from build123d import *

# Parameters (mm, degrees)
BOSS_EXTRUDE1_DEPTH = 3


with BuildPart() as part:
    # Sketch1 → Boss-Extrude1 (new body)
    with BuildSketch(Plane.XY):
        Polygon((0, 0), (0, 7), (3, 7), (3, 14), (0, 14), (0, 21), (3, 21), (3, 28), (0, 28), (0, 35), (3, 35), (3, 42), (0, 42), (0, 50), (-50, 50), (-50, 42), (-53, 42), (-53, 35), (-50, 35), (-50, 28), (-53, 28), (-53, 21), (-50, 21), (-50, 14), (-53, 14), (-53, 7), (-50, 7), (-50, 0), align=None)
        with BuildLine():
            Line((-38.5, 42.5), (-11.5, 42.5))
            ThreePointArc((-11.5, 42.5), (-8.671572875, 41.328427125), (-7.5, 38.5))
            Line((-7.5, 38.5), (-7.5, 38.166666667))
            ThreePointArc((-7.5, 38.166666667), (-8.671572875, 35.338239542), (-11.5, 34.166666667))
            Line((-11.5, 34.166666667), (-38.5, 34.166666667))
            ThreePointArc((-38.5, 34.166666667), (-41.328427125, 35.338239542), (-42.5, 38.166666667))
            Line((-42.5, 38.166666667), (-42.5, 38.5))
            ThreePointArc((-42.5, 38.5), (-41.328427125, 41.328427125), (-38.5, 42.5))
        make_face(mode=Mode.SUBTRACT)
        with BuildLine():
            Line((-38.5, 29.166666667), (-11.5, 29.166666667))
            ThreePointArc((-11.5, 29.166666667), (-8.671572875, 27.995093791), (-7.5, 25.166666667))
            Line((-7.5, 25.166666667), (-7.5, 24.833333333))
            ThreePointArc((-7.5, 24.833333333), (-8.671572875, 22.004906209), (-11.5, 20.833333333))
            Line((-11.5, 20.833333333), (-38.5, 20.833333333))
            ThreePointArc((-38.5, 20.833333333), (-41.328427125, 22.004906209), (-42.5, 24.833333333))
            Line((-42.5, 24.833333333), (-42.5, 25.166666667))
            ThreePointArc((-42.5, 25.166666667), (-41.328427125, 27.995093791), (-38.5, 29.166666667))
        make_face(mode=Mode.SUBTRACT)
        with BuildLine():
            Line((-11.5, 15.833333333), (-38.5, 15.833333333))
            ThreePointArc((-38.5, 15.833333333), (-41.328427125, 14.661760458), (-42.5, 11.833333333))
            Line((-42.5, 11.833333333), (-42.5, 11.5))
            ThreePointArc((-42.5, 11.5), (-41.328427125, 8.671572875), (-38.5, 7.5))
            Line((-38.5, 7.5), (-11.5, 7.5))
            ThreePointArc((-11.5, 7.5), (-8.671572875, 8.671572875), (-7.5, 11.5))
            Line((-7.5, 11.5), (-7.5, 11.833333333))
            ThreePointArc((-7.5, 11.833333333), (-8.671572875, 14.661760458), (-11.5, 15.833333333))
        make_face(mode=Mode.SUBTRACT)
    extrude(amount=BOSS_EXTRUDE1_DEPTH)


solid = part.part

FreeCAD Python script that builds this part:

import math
import FreeCAD as App
import Part
import Sketcher
from FreeCAD import Vector

doc = App.newDocument("Part")
body = doc.addObject("PartDesign::Body", "Body")

# Sketch on XY plane
sketch1 = body.newObject("Sketcher::SketchObject", "Sketch")
sketch1.AttachmentSupport = (doc.getObject("XY_Plane"), [""])
sketch1.MapMode = "FlatFace"
sketch1.addGeometry(Part.LineSegment(Vector(0, 0, 0), Vector(0, 7, 0)), False)
sketch1.addGeometry(Part.LineSegment(Vector(0, 7, 0), Vector(3, 7, 0)), False)
sketch1.addGeometry(Part.LineSegment(Vector(3, 7, 0), Vector(3, 14, 0)), False)
sketch1.addGeometry(Part.LineSegment(Vector(3, 14, 0), Vector(0, 14, 0)), False)
sketch1.addGeometry(Part.LineSegment(Vector(0, 14, 0), Vector(0, 21, 0)), False)
sketch1.addGeometry(Part.LineSegment(Vector(0, 21, 0), Vector(3, 21, 0)), False)
sketch1.addGeometry(Part.LineSegment(Vector(3, 21, 0), Vector(3, 28, 0)), False)
sketch1.addGeometry(Part.LineSegment(Vector(3, 28, 0), Vector(0, 28, 0)), False)
sketch1.addGeometry(Part.LineSegment(Vector(0, 28, 0), Vector(0, 35, 0)), False)
sketch1.addGeometry(Part.LineSegment(Vector(0, 35, 0), Vector(3, 35, 0)), False)
sketch1.addGeometry(Part.LineSegment(Vector(3, 35, 0), Vector(3, 42, 0)), False)
sketch1.addGeometry(Part.LineSegment(Vector(3, 42, 0), Vector(0, 42, 0)), False)
sketch1.addGeometry(Part.LineSegment(Vector(0, 42, 0), Vector(0, 50, 0)), False)
sketch1.addGeometry(Part.LineSegment(Vector(0, 50, 0), Vector(-50, 50, 0)), False)
sketch1.addGeometry(Part.LineSegment(Vector(-50, 50, 0), Vector(-50, 42, 0)), False)
sketch1.addGeometry(Part.LineSegment(Vector(-50, 42, 0), Vector(-53, 42, 0)), False)
sketch1.addGeometry(Part.LineSegment(Vector(-53, 42, 0), Vector(-53, 35, 0)), False)
sketch1.addGeometry(Part.LineSegment(Vector(-53, 35, 0), Vector(-50, 35, 0)), False)
sketch1.addGeometry(Part.LineSegment(Vector(-50, 35, 0), Vector(-50, 28, 0)), False)
sketch1.addGeometry(Part.LineSegment(Vector(-50, 28, 0), Vector(-53, 28, 0)), False)
sketch1.addGeometry(Part.LineSegment(Vector(-53, 28, 0), Vector(-53, 21, 0)), False)
sketch1.addGeometry(Part.LineSegment(Vector(-53, 21, 0), Vector(-50, 21, 0)), False)
sketch1.addGeometry(Part.LineSegment(Vector(-50, 21, 0), Vector(-50, 14, 0)), False)
sketch1.addGeometry(Part.LineSegment(Vector(-50, 14, 0), Vector(-53, 14, 0)), False)
sketch1.addGeometry(Part.LineSegment(Vector(-53, 14, 0), Vector(-53, 7, 0)), False)
sketch1.addGeometry(Part.LineSegment(Vector(-53, 7, 0), Vector(-50, 7, 0)), False)
sketch1.addGeometry(Part.LineSegment(Vector(-50, 7, 0), Vector(-50, 0, 0)), False)
sketch1.addGeometry(Part.LineSegment(Vector(-50, 0, 0), Vector(0, 0, 0)), False)
sketch1.addGeometry(Part.LineSegment(Vector(-38.5, 15.83, 0), Vector(-11.5, 15.83, 0)), False)
sketch1.addGeometry(Part.ArcOfCircle(Part.Circle(Vector(-11.5, 11.83, 0), Vector(0, 0, 1), 4), math.radians(0), math.radians(90)), False)
sketch1.addGeometry(Part.LineSegment(Vector(-7.5, 11.83, 0), Vector(-7.5, 11.5, 0)), False)
sketch1.addGeometry(Part.ArcOfCircle(Part.Circle(Vector(-11.5, 11.5, 0), Vector(0, 0, 1), 4), math.radians(-90), math.radians(0)), False)
sketch1.addGeometry(Part.LineSegment(Vector(-11.5, 7.5, 0), Vector(-38.5, 7.5, 0)), False)
sketch1.addGeometry(Part.ArcOfCircle(Part.Circle(Vector(-38.5, 11.5, 0), Vector(0, 0, 1), 4), math.radians(180), math.radians(270)), False)
sketch1.addGeometry(Part.LineSegment(Vector(-42.5, 11.5, 0), Vector(-42.5, 11.83, 0)), False)
sketch1.addGeometry(Part.ArcOfCircle(Part.Circle(Vector(-38.5, 11.83, 0), Vector(0, 0, 1), 4), math.radians(90), math.radians(180)), False)
sketch1.addGeometry(Part.ArcOfCircle(Part.Circle(Vector(-38.5, 25.17, 0), Vector(0, 0, 1), 4), math.radians(90), math.radians(180)), False)
sketch1.addGeometry(Part.LineSegment(Vector(-38.5, 29.17, 0), Vector(-11.5, 29.17, 0)), False)
sketch1.addGeometry(Part.ArcOfCircle(Part.Circle(Vector(-11.5, 25.17, 0), Vector(0, 0, 1), 4), math.radians(0), math.radians(90)), False)
sketch1.addGeometry(Part.LineSegment(Vector(-7.5, 25.17, 0), Vector(-7.5, 24.83, 0)), False)
sketch1.addGeometry(Part.ArcOfCircle(Part.Circle(Vector(-11.5, 24.83, 0), Vector(0, 0, 1), 4), math.radians(-90), math.radians(0)), False)
sketch1.addGeometry(Part.LineSegment(Vector(-11.5, 20.83, 0), Vector(-38.5, 20.83, 0)), False)
sketch1.addGeometry(Part.ArcOfCircle(Part.Circle(Vector(-38.5, 24.83, 0), Vector(0, 0, 1), 4), math.radians(-180), math.radians(-90)), False)
sketch1.addGeometry(Part.LineSegment(Vector(-42.5, 24.83, 0), Vector(-42.5, 25.17, 0)), False)
sketch1.addGeometry(Part.ArcOfCircle(Part.Circle(Vector(-38.5, 38.5, 0), Vector(0, 0, 1), 4), math.radians(90), math.radians(180)), False)
sketch1.addGeometry(Part.LineSegment(Vector(-38.5, 42.5, 0), Vector(-11.5, 42.5, 0)), False)
sketch1.addGeometry(Part.ArcOfCircle(Part.Circle(Vector(-11.5, 38.5, 0), Vector(0, 0, 1), 4), math.radians(0), math.radians(90)), False)
sketch1.addGeometry(Part.LineSegment(Vector(-7.5, 38.5, 0), Vector(-7.5, 38.17, 0)), False)
sketch1.addGeometry(Part.ArcOfCircle(Part.Circle(Vector(-11.5, 38.17, 0), Vector(0, 0, 1), 4), math.radians(-90), math.radians(0)), False)
sketch1.addGeometry(Part.LineSegment(Vector(-11.5, 34.17, 0), Vector(-38.5, 34.17, 0)), False)
sketch1.addGeometry(Part.ArcOfCircle(Part.Circle(Vector(-38.5, 38.17, 0), Vector(0, 0, 1), 4), math.radians(180), math.radians(270)), False)
sketch1.addGeometry(Part.LineSegment(Vector(-42.5, 38.17, 0), Vector(-42.5, 38.5, 0)), False)
sketch1.addConstraint(Sketcher.Constraint("Coincident", 0, 2, 1, 1))
sketch1.addConstraint(Sketcher.Constraint("Coincident", 1, 2, 2, 1))
sketch1.addConstraint(Sketcher.Constraint("Coincident", 2, 2, 3, 1))
sketch1.addConstraint(Sketcher.Constraint("Coincident", 3, 2, 4, 1))
sketch1.addConstraint(Sketcher.Constraint("Coincident", 4, 2, 5, 1))
sketch1.addConstraint(Sketcher.Constraint("Coincident", 5, 2, 6, 1))
sketch1.addConstraint(Sketcher.Constraint("Coincident", 6, 2, 7, 1))
sketch1.addConstraint(Sketcher.Constraint("Coincident", 7, 2, 8, 1))
sketch1.addConstraint(Sketcher.Constraint("Coincident", 8, 2, 9, 1))
sketch1.addConstraint(Sketcher.Constraint("Coincident", 9, 2, 10, 1))
sketch1.addConstraint(Sketcher.Constraint("Coincident", 10, 2, 11, 1))
sketch1.addConstraint(Sketcher.Constraint("Coincident", 11, 2, 12, 1))
sketch1.addConstraint(Sketcher.Constraint("Coincident", 12, 2, 13, 1))
sketch1.addConstraint(Sketcher.Constraint("Coincident", 13, 2, 14, 1))
sketch1.addConstraint(Sketcher.Constraint("Coincident", 14, 2, 15, 1))
sketch1.addConstraint(Sketcher.Constraint("Coincident", 15, 2, 16, 1))
sketch1.addConstraint(Sketcher.Constraint("Coincident", 16, 2, 17, 1))
sketch1.addConstraint(Sketcher.Constraint("Coincident", 17, 2, 18, 1))
sketch1.addConstraint(Sketcher.Constraint("Coincident", 18, 2, 19, 1))
sketch1.addConstraint(Sketcher.Constraint("Coincident", 19, 2, 20, 1))
sketch1.addConstraint(Sketcher.Constraint("Coincident", 20, 2, 21, 1))
sketch1.addConstraint(Sketcher.Constraint("Coincident", 21, 2, 22, 1))
sketch1.addConstraint(Sketcher.Constraint("Coincident", 22, 2, 23, 1))
sketch1.addConstraint(Sketcher.Constraint("Coincident", 23, 2, 24, 1))
sketch1.addConstraint(Sketcher.Constraint("Coincident", 24, 2, 25, 1))
sketch1.addConstraint(Sketcher.Constraint("Coincident", 25, 2, 26, 1))
sketch1.addConstraint(Sketcher.Constraint("Coincident", 26, 2, 27, 1))
sketch1.addConstraint(Sketcher.Constraint("Coincident", 27, 2, 0, 1))
sketch1.addConstraint(Sketcher.Constraint("Tangent", 28, 2, 29, 2))
sketch1.addConstraint(Sketcher.Constraint("Tangent", 29, 1, 30, 1))
sketch1.addConstraint(Sketcher.Constraint("Tangent", 30, 2, 31, 2))
sketch1.addConstraint(Sketcher.Constraint("Tangent", 31, 1, 32, 1))
sketch1.addConstraint(Sketcher.Constraint("Tangent", 32, 2, 33, 2))
sketch1.addConstraint(Sketcher.Constraint("Tangent", 33, 1, 34, 1))
sketch1.addConstraint(Sketcher.Constraint("Tangent", 34, 2, 35, 2))
sketch1.addConstraint(Sketcher.Constraint("Tangent", 35, 1, 28, 1))
sketch1.addConstraint(Sketcher.Constraint("Tangent", 36, 1, 37, 1))
sketch1.addConstraint(Sketcher.Constraint("Tangent", 37, 2, 38, 2))
sketch1.addConstraint(Sketcher.Constraint("Tangent", 38, 1, 39, 1))
sketch1.addConstraint(Sketcher.Constraint("Tangent", 39, 2, 40, 2))
sketch1.addConstraint(Sketcher.Constraint("Tangent", 40, 1, 41, 1))
sketch1.addConstraint(Sketcher.Constraint("Tangent", 41, 2, 42, 2))
sketch1.addConstraint(Sketcher.Constraint("Tangent", 42, 1, 43, 1))
sketch1.addConstraint(Sketcher.Constraint("Tangent", 43, 2, 36, 2))
sketch1.addConstraint(Sketcher.Constraint("Tangent", 44, 1, 45, 1))
sketch1.addConstraint(Sketcher.Constraint("Tangent", 45, 2, 46, 2))
sketch1.addConstraint(Sketcher.Constraint("Tangent", 46, 1, 47, 1))
sketch1.addConstraint(Sketcher.Constraint("Tangent", 47, 2, 48, 2))
sketch1.addConstraint(Sketcher.Constraint("Tangent", 48, 1, 49, 1))
sketch1.addConstraint(Sketcher.Constraint("Tangent", 49, 2, 50, 2))
sketch1.addConstraint(Sketcher.Constraint("Tangent", 50, 1, 51, 1))
sketch1.addConstraint(Sketcher.Constraint("Tangent", 51, 2, 44, 2))
sketch1.addConstraint(Sketcher.Constraint("Vertical", 0))
sketch1.addConstraint(Sketcher.Constraint("Horizontal", 1))
sketch1.addConstraint(Sketcher.Constraint("Vertical", 2))
sketch1.addConstraint(Sketcher.Constraint("Horizontal", 3))
sketch1.addConstraint(Sketcher.Constraint("Vertical", 4))
sketch1.addConstraint(Sketcher.Constraint("Horizontal", 5))
sketch1.addConstraint(Sketcher.Constraint("Vertical", 6))
sketch1.addConstraint(Sketcher.Constraint("Horizontal", 7))
sketch1.addConstraint(Sketcher.Constraint("Vertical", 8))
sketch1.addConstraint(Sketcher.Constraint("Horizontal", 9))
sketch1.addConstraint(Sketcher.Constraint("Vertical", 10))
sketch1.addConstraint(Sketcher.Constraint("Horizontal", 11))
sketch1.addConstraint(Sketcher.Constraint("Vertical", 12))
sketch1.addConstraint(Sketcher.Constraint("Horizontal", 13))
sketch1.addConstraint(Sketcher.Constraint("Vertical", 14))
sketch1.addConstraint(Sketcher.Constraint("Horizontal", 15))
sketch1.addConstraint(Sketcher.Constraint("Vertical", 16))
sketch1.addConstraint(Sketcher.Constraint("Horizontal", 17))
sketch1.addConstraint(Sketcher.Constraint("Vertical", 18))
sketch1.addConstraint(Sketcher.Constraint("Horizontal", 19))
sketch1.addConstraint(Sketcher.Constraint("Vertical", 20))
sketch1.addConstraint(Sketcher.Constraint("Horizontal", 21))
sketch1.addConstraint(Sketcher.Constraint("Vertical", 22))
sketch1.addConstraint(Sketcher.Constraint("Horizontal", 23))
sketch1.addConstraint(Sketcher.Constraint("Vertical", 24))
sketch1.addConstraint(Sketcher.Constraint("Horizontal", 25))
sketch1.addConstraint(Sketcher.Constraint("Vertical", 26))
sketch1.addConstraint(Sketcher.Constraint("Horizontal", 27))
sketch1.addConstraint(Sketcher.Constraint("Horizontal", 28))
sketch1.addConstraint(Sketcher.Constraint("Vertical", 30))
sketch1.addConstraint(Sketcher.Constraint("Horizontal", 32))
sketch1.addConstraint(Sketcher.Constraint("Vertical", 34))
sketch1.addConstraint(Sketcher.Constraint("Horizontal", 37))
sketch1.addConstraint(Sketcher.Constraint("Vertical", 39))
sketch1.addConstraint(Sketcher.Constraint("Horizontal", 41))
sketch1.addConstraint(Sketcher.Constraint("Vertical", 43))
sketch1.addConstraint(Sketcher.Constraint("Horizontal", 45))
sketch1.addConstraint(Sketcher.Constraint("Vertical", 47))
sketch1.addConstraint(Sketcher.Constraint("Horizontal", 49))
sketch1.addConstraint(Sketcher.Constraint("Vertical", 51))
sketch1.addConstraint(Sketcher.Constraint("Coincident", 27, 2, -1, 1))
sketch1.addConstraint(Sketcher.Constraint("Equal", 29, 31))
sketch1.addConstraint(Sketcher.Constraint("Equal", 31, 33))
sketch1.addConstraint(Sketcher.Constraint("Equal", 33, 35))
sketch1.addConstraint(Sketcher.Constraint("Equal", 35, 36))
sketch1.addConstraint(Sketcher.Constraint("Equal", 36, 38))
sketch1.addConstraint(Sketcher.Constraint("Equal", 38, 40))
sketch1.addConstraint(Sketcher.Constraint("Equal", 40, 42))
sketch1.addConstraint(Sketcher.Constraint("Equal", 42, 44))
sketch1.addConstraint(Sketcher.Constraint("Equal", 44, 46))
sketch1.addConstraint(Sketcher.Constraint("Equal", 46, 48))
sketch1.addConstraint(Sketcher.Constraint("Equal", 48, 50))
sketch1.addConstraint(Sketcher.Constraint("PointOnObject", 3, 2, -2))
sketch1.addConstraint(Sketcher.Constraint("PointOnObject", 7, 2, -2))
sketch1.addConstraint(Sketcher.Constraint("PointOnObject", 11, 2, -2))
sketch1.addConstraint(Sketcher.Constraint("Horizontal", 11, 2, 14, 2))
sketch1.addConstraint(Sketcher.Constraint("Horizontal", 9, 2, 16, 2))
sketch1.addConstraint(Sketcher.Constraint("Horizontal", 7, 2, 18, 2))
sketch1.addConstraint(Sketcher.Constraint("Horizontal", 5, 2, 20, 2))
sketch1.addConstraint(Sketcher.Constraint("Horizontal", 3, 2, 22, 2))
sketch1.addConstraint(Sketcher.Constraint("Horizontal", 1, 2, 24, 2))
sketch1.addConstraint(Sketcher.Constraint("Vertical", 35, 3, 36, 3))
sketch1.addConstraint(Sketcher.Constraint("Vertical", 31, 3, 38, 3))
sketch1.addConstraint(Sketcher.Constraint("Vertical", 42, 3, 44, 3))
sketch1.addConstraint(Sketcher.Constraint("Vertical", 40, 3, 46, 3))
sketch1.addConstraint(Sketcher.Constraint("Vertical", 2, 2, 5, 2))
sketch1.addConstraint(Sketcher.Constraint("Vertical", 6, 2, 9, 2))
sketch1.addConstraint(Sketcher.Constraint("Vertical", 14, 2, 17, 2))
sketch1.addConstraint(Sketcher.Constraint("Vertical", 16, 2, 19, 2))
sketch1.addConstraint(Sketcher.Constraint("Vertical", 18, 2, 21, 2))
sketch1.addConstraint(Sketcher.Constraint("Vertical", 20, 2, 23, 2))
sketch1.addConstraint(Sketcher.Constraint("Vertical", 22, 2, 25, 2))
sketch1.addConstraint(Sketcher.Constraint("Equal", 11, 15))
sketch1.addConstraint(Sketcher.Constraint("Equal", 0, 2))
sketch1.addConstraint(Sketcher.Constraint("Equal", 2, 4))
sketch1.addConstraint(Sketcher.Constraint("Equal", 4, 6))
sketch1.addConstraint(Sketcher.Constraint("Equal", 6, 8))
sketch1.addConstraint(Sketcher.Constraint("Equal", 8, 10))
sketch1.addConstraint(Sketcher.Constraint("Equal", 34, 39))
sketch1.addConstraint(Sketcher.Constraint("Equal", 43, 47))
sketch1.addConstraint(Sketcher.Constraint("Radius", 29, 4.0))
sketch1.addConstraint(Sketcher.Constraint("DistanceX", 1, 1, 1, 2, 3.0))
sketch1.addConstraint(Sketcher.Constraint("DistanceX", 13, 2, 13, 1, 50.0))
sketch1.addConstraint(Sketcher.Constraint("DistanceX", 28, 1, 28, 2, 27.0))
sketch1.addConstraint(Sketcher.Constraint("DistanceY", 0, 1, 0, 2, 7.0))
sketch1.addConstraint(Sketcher.Constraint("DistanceY", 12, 1, 12, 2, 8.0))
sketch1.addConstraint(Sketcher.Constraint("DistanceX", 29, 3, -1, 1, 11.5))
sketch1.addConstraint(Sketcher.Constraint("DistanceY", -1, 1, 31, 3, 11.5))
sketch1.addConstraint(Sketcher.Constraint("DistanceY", -1, 1, 44, 3, 38.5))
sketch1.addConstraint(Sketcher.Constraint("DistanceY", 30, 2, 30, 1, 0.333333))
sketch1.addConstraint(Sketcher.Constraint("DistanceY", -1, 1, 36, 3, 25.166667))
pad1 = body.newObject("PartDesign::Pad", "Pad")
pad1.Profile = sketch1
pad1.Length = 3

doc.recompute()
